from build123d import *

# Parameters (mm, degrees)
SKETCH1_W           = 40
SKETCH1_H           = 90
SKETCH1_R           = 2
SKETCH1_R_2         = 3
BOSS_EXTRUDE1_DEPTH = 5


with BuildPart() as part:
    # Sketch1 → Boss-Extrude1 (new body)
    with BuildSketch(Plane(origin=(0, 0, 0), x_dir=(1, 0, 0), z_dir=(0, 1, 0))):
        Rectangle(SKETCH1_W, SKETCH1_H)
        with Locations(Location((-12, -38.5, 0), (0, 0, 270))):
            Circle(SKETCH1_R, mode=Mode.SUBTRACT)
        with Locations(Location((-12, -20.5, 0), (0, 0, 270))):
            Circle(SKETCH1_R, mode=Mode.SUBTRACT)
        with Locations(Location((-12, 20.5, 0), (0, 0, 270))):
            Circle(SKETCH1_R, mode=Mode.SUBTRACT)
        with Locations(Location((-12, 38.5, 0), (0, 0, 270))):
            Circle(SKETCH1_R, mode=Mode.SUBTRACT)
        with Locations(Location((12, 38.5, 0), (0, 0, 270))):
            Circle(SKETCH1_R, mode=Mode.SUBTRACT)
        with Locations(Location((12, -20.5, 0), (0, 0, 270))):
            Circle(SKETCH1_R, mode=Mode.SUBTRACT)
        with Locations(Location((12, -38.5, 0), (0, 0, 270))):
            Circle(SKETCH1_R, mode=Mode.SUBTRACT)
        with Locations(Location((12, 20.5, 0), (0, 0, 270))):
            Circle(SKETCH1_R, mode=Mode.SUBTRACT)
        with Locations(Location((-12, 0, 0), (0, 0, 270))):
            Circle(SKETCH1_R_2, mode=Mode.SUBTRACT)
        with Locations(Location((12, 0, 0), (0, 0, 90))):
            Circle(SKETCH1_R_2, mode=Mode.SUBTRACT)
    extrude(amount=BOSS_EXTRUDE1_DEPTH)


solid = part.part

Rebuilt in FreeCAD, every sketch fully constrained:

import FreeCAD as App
import Part
import Sketcher

V = App.Vector
Q = App.Units.Quantity


def add_polygon(sketch, points):
    """Adds a closed chain of lines whose ends are joined by coincident constraints."""
    first, n = sketch.GeometryCount, len(points)
    for a, b in zip(points, points[1:] + points[:1]):
        sketch.addGeometry(Part.LineSegment(App.Vector(*a, 0), App.Vector(*b, 0)), False)
    for i in range(n):
        sketch.addConstraint(Sketcher.Constraint("Coincident", first + i, 2, first + (i + 1) % n, 1))

doc = App.newDocument("Part")
params = doc.addObject("Spreadsheet::Sheet", "Params")
for row, (alias, value) in enumerate([
    ("sketch1_diameter", "4 mm"),
    ("sketch1_diameter2", "6 mm"),
    ("sketch1_width", "40 mm"),
    ("sketch1_height", "90 mm"),
    ("pad1_length", "5 mm"),
], start=1):
    params.set(f"A{row}", alias)
    params.set(f"B{row}", "=" + value)
    params.setAlias(f"B{row}", alias)

body = doc.addObject("PartDesign::Body", "Body")

# Sketch on XZ plane
sketch1 = body.newObject("Sketcher::SketchObject", "Sketch")
sketch1.AttachmentSupport = (doc.getObject("XZ_Plane"), [""])
sketch1.MapMode = "FlatFace"
add_polygon(sketch1, [(-20, -45), (-20, 45), (20, 45), (20, -45)])  # lines 0-3
sketch1.addGeometry(Part.Circle(V(-12, 38.5, 0), V(0, 0, 1), 2), False)  # 4
sketch1.addGeometry(Part.Circle(V(-12, 20.5, 0), V(0, 0, 1), 2), False)  # 5
sketch1.addGeometry(Part.Circle(V(12, 38.5, 0), V(0, 0, 1), 2), False)  # 6
sketch1.addGeometry(Part.Circle(V(12, 20.5, 0), V(0, 0, 1), 2), False)  # 7
sketch1.addGeometry(Part.Circle(V(-12, 0, 0), V(0, 0, 1), 3), False)  # 8
sketch1.addGeometry(Part.Circle(V(-12, -20.5, 0), V(0, 0, 1), 2), False)  # 9
sketch1.addGeometry(Part.Circle(V(-12, -38.5, 0), V(0, 0, 1), 2), False)  # 10
sketch1.addGeometry(Part.Circle(V(12, 0, 0), V(0, 0, 1), 3), False)  # 11
sketch1.addGeometry(Part.Circle(V(12, -20.5, 0), V(0, 0, 1), 2), False)  # 12
sketch1.addGeometry(Part.Circle(V(12, -38.5, 0), V(0, 0, 1), 2), False)  # 13
sketch1.addConstraint([
    Sketcher.Constraint("Vertical", 0),
    Sketcher.Constraint("Horizontal", 1),
    Sketcher.Constraint("Vertical", 2),
    Sketcher.Constraint("Horizontal", 3),
    Sketcher.Constraint("Equal", 4, 5),
    Sketcher.Constraint("Equal", 5, 6),
    Sketcher.Constraint("Equal", 6, 7),
    Sketcher.Constraint("Equal", 7, 9),
    Sketcher.Constraint("Equal", 9, 10),
    Sketcher.Constraint("Equal", 8, 11),
    Sketcher.Constraint("Equal", 10, 12),
    Sketcher.Constraint("Equal", 12, 13),
    Sketcher.Constraint("Symmetric", 7, 3, 9, 3, -1, 1),
    Sketcher.Constraint("Symmetric", 6, 3, 10, 3, -1, 1),
    Sketcher.Constraint("Symmetric", 8, 3, 11, 3, -1, 1),
    Sketcher.Constraint("Symmetric", 5, 3, 12, 3, -1, 1),
    Sketcher.Constraint("Symmetric", 4, 3, 13, 3, -1, 1),
    Sketcher.Constraint("Symmetric", 0, 2, 2, 2, -1, 1),
    Sketcher.Constraint("Symmetric", 4, 3, 6, 3, -2),
    Sketcher.Constraint("Symmetric", 5, 3, 7, 3, -2),
    Sketcher.Constraint("PointOnObject", 8, 3, -1),
    Sketcher.Constraint("Vertical", 4, 3, 5, 3),
    Sketcher.Constraint("Vertical", 5, 3, 8, 3),
    Sketcher.Constraint("Diameter", 4, Q("4 mm")),
    Sketcher.Constraint("Diameter", 8, Q("6 mm")),
    Sketcher.Constraint("DistanceX", 1, 1, 1, 2, Q("40 mm")),
    Sketcher.Constraint("DistanceY", 0, 1, 0, 2, Q("90 mm")),
    Sketcher.Constraint("DistanceX", 4, 3, -1, 1, Q("12 mm")),
    Sketcher.Constraint("DistanceY", 5, 3, 4, 3, Q("18 mm")),
    Sketcher.Constraint("DistanceY", 9, 3, 5, 3, Q("41 mm")),
])
sketch1.setExpression("Constraints[27]", "Params.sketch1_diameter")
sketch1.setExpression("Constraints[28]", "Params.sketch1_diameter2")
sketch1.setExpression("Constraints[29]", "Params.sketch1_width")
sketch1.setExpression("Constraints[30]", "Params.sketch1_height")
pad1 = body.newObject("PartDesign::Pad", "Pad")
pad1.Profile = sketch1
pad1.setExpression("Length", "Params.pad1_length")
pad1.Reversed = True

doc.recompute()
